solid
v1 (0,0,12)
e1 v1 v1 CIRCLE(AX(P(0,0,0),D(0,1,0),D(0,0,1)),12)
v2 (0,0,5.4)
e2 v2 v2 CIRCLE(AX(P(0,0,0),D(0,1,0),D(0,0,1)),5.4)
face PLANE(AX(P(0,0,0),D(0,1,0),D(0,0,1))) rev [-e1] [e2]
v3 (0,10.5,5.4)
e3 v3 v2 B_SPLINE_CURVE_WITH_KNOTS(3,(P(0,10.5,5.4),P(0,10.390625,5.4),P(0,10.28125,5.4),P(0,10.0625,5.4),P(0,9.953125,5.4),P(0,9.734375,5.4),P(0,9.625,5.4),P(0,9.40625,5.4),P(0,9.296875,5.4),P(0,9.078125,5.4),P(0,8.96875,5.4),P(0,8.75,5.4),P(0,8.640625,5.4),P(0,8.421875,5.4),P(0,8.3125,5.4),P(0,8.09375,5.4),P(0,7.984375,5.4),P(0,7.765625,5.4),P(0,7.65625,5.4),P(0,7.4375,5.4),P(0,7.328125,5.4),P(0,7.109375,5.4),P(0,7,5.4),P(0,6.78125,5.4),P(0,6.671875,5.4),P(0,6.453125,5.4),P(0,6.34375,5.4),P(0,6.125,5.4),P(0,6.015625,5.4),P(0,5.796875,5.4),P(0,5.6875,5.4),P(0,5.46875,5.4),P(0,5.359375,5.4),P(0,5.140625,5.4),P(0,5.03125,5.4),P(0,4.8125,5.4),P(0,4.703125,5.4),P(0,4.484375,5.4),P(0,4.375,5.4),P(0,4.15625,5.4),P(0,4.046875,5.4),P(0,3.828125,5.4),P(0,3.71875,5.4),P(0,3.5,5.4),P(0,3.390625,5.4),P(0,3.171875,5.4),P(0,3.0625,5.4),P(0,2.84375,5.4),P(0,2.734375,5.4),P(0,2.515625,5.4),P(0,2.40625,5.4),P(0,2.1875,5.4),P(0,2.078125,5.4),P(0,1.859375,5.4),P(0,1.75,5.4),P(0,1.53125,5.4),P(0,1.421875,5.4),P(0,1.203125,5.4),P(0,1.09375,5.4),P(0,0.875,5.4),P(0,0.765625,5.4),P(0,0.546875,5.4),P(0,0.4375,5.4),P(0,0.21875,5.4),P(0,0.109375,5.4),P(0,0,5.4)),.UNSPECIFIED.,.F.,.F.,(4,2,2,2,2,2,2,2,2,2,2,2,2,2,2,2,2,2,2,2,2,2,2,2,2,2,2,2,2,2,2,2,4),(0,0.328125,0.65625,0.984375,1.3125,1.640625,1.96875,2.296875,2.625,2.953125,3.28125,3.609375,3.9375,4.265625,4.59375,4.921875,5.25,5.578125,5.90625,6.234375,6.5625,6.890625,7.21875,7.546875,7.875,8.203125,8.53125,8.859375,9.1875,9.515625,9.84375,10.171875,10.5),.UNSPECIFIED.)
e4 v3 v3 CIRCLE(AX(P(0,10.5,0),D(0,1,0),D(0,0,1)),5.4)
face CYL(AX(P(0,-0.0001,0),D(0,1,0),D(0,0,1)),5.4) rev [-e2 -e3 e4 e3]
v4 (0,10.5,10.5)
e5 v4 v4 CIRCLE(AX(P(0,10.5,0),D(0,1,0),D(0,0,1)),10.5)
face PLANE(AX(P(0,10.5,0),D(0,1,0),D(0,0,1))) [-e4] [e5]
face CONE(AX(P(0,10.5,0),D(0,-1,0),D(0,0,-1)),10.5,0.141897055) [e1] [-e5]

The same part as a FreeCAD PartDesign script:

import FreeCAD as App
import Part
import Sketcher
Q = App.Units.Quantity

doc = App.newDocument("Part")
body = doc.addObject("PartDesign::Body", "Body")

# Sketch on XZ plane
sketch1 = body.newObject("Sketcher::SketchObject", "Sketch")
sketch1.AttachmentSupport = (doc.getObject("XZ_Plane"), [""])
sketch1.MapMode = "FlatFace"
sketch1.addGeometry(Part.Circle(App.Vector(0, 0, 0), App.Vector(0, 0, 1), 12), False)
sketch1.addConstraint(Sketcher.Constraint("Coincident", 0, 3, -1, 1))
sketch1.addConstraint(Sketcher.Constraint("Diameter", 0, Q("24 mm")))

# Sketch on XZ plane
sketch2 = body.newObject("Sketcher::SketchObject", "Sketch001")
sketch2.AttachmentSupport = (doc.getObject("XZ_Plane"), [""])
sketch2.MapMode = "FlatFace"
sketch2.AttachmentOffset = App.Placement(App.Vector(0, 0, -10.5), App.Rotation())
sketch2.addGeometry(Part.Circle(App.Vector(0, 0, 0), App.Vector(0, 0, 1), 10), False)
sketch2.addConstraint(Sketcher.Constraint("Coincident", 0, 3, -1, 1))
sketch2.addConstraint(Sketcher.Constraint("Diameter", 0, Q("21 mm")))

additiveloft = body.newObject("PartDesign::AdditiveLoft", "AdditiveLoft")
additiveloft.Profile = sketch1
additiveloft.Sections = [sketch2]

# Sketch on XZ plane
sketch3 = body.newObject("Sketcher::SketchObject", "Sketch002")
sketch3.AttachmentSupport = (doc.getObject("XZ_Plane"), [""])
sketch3.MapMode = "FlatFace"
sketch3.AttachmentOffset = App.Placement(App.Vector(0, 0, -10.5), App.Rotation())
sketch3.addGeometry(Part.Circle(App.Vector(0, 0, 0), App.Vector(0, 0, 1), 5), False)
sketch3.addConstraint(Sketcher.Constraint("Coincident", 0, 3, -1, 1))
sketch3.addConstraint(Sketcher.Constraint("Diameter", 0, Q("10.8 mm")))
pocket1 = body.newObject("PartDesign::Pocket", "Pocket")
pocket1.Profile = sketch3
pocket1.Type = "ThroughAll"
pocket1.Reversed = True

doc.recompute()
